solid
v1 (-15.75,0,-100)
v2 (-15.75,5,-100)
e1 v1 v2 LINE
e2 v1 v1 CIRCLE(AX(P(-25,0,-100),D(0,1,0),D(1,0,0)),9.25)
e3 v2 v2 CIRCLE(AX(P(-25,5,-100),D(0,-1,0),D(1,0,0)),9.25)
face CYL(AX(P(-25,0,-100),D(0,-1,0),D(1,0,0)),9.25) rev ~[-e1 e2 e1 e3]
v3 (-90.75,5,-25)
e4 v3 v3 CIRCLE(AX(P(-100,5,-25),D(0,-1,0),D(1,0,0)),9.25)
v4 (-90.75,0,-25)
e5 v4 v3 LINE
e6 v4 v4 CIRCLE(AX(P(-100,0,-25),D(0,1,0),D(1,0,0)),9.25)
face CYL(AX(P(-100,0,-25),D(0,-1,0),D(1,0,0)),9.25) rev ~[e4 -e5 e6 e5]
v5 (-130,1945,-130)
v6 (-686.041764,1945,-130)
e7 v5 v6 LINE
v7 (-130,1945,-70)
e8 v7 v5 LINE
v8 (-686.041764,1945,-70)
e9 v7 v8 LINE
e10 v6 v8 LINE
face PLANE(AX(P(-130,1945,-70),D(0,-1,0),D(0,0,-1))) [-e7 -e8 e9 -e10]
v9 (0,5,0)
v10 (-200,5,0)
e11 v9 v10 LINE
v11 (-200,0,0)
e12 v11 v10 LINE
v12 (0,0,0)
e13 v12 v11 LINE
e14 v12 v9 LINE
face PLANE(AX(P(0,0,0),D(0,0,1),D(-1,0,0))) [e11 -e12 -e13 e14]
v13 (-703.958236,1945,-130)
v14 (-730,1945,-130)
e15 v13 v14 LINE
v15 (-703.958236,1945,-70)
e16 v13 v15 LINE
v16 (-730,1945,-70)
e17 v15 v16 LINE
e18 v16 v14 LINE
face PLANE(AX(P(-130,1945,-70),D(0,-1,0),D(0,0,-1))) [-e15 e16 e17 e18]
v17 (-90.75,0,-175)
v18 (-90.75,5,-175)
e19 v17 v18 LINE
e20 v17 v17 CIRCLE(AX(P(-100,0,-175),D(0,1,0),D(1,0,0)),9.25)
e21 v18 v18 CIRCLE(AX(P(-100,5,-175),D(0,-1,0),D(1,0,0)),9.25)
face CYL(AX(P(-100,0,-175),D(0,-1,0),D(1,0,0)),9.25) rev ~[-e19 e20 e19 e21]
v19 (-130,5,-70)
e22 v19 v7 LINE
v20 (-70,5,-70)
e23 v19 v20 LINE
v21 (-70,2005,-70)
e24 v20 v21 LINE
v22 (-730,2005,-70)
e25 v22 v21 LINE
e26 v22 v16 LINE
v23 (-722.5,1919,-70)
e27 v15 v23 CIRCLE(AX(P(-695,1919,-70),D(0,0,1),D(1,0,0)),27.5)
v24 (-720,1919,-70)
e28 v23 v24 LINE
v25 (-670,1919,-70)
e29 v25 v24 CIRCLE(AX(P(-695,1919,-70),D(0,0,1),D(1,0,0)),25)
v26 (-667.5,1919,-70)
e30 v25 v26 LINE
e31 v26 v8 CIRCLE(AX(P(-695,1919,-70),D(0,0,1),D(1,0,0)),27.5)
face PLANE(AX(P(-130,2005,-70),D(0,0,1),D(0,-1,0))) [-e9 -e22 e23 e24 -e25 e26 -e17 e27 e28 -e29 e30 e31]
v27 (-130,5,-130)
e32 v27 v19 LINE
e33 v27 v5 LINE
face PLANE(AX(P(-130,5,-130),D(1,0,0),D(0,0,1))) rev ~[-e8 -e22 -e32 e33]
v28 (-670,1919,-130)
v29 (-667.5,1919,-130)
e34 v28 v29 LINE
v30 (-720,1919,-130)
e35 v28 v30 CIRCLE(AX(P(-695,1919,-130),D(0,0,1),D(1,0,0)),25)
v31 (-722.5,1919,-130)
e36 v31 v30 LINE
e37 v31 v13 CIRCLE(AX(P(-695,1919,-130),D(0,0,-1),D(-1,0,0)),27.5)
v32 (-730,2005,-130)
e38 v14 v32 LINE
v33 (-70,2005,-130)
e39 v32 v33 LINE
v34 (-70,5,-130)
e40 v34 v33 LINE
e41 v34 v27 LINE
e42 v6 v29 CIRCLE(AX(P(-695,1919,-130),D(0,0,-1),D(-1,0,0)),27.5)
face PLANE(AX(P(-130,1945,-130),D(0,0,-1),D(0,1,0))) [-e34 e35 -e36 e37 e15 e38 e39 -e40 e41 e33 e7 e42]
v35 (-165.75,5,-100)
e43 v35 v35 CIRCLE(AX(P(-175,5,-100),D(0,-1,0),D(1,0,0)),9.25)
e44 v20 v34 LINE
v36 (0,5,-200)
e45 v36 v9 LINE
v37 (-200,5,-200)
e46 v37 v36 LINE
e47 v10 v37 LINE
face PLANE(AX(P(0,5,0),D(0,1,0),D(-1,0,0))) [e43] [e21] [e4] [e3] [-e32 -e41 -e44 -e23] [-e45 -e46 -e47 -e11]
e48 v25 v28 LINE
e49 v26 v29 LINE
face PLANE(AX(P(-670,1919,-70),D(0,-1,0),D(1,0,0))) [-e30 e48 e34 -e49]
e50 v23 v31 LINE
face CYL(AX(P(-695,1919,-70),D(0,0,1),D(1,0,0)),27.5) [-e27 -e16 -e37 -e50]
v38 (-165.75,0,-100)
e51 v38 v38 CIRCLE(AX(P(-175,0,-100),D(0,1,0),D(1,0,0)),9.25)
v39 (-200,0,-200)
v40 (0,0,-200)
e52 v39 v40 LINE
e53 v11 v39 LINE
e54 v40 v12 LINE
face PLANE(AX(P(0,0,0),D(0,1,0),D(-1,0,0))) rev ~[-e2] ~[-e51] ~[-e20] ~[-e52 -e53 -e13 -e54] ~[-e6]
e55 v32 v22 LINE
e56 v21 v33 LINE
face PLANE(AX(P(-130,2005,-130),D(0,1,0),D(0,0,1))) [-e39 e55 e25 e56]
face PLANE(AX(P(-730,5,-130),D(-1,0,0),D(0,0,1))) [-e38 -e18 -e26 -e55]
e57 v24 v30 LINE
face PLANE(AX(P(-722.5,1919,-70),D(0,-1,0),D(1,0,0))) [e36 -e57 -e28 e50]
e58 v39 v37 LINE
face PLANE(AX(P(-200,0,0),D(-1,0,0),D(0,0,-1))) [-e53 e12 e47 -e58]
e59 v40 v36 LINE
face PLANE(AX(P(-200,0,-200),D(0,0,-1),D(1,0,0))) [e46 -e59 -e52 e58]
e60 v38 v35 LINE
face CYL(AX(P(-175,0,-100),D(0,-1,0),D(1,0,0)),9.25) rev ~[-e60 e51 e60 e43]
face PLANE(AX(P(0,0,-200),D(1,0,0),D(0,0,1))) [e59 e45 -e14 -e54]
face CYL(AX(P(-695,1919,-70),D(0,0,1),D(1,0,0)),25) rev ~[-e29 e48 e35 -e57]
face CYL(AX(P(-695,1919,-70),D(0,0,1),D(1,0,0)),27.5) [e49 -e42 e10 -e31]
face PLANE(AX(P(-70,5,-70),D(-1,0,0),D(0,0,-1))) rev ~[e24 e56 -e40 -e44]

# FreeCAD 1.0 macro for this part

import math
import FreeCAD as App
import Part
import Sketcher
from FreeCAD import Vector

doc = App.newDocument("Part")
params = doc.addObject("Spreadsheet::Sheet", "Params")
for row, (alias, value) in enumerate([
    ("sketch1_width", "200 mm"),
    ("pad1_length", "5 mm"),
    ("sketch2_width", "60 mm"),
    ("pad2_length", "2000 mm"),
    ("sketch3_width", "60 mm"),
    ("pad3_length", "600 mm"),
    ("sketch4_radius", "25 mm"),
    ("sketch4_radius2", "27.5 mm"),
    ("pad4_length", "60 mm"),
    ("sketch5_diameter", "18.5 mm"),
    ("pocket1_length", "10 mm"),
], start=1):
    params.set(f"A{row}", alias)
    params.set(f"B{row}", "=" + value)
    params.setAlias(f"B{row}", alias)

body = doc.addObject("PartDesign::Body", "Body")

# Sketch on XZ plane
sketch1 = doc.addObject("Sketcher::SketchObject", "Sketch")
body.addObject(sketch1)
sketch1.AttachmentSupport = (doc.XZ_Plane, [""])
sketch1.MapMode = "FlatFace"
sketch1.addGeometry([
    Part.LineSegment(Vector(-200, 0, 0), Vector(0, 0, 0)),
    Part.LineSegment(Vector(0, 0, 0), Vector(0, -200, 0)),
    Part.LineSegment(Vector(0, -200, 0), Vector(-200, -200, 0)),
    Part.LineSegment(Vector(-200, -200, 0), Vector(-200, 0, 0)),
], False)
sketch1.addConstraint([
    Sketcher.Constraint("Coincident", 0, 2, 1, 1),
    Sketcher.Constraint("Coincident", 1, 2, 2, 1),
    Sketcher.Constraint("Coincident", 2, 2, 3, 1),
    Sketcher.Constraint("Coincident", 3, 2, 0, 1),
    Sketcher.Constraint("Horizontal", 0),
    Sketcher.Constraint("Vertical", 1),
    Sketcher.Constraint("Horizontal", 2),
    Sketcher.Constraint("Vertical", 3),
    Sketcher.Constraint("Coincident", 0, 2, -1, 1),
    Sketcher.Constraint("Equal", 2, 1),
    Sketcher.Constraint("DistanceX", 0, 1, 0, 2, 200.0),
])
sketch1.setExpression("Constraints[10]", "Params.sketch1_width")
pad1 = doc.addObject("PartDesign::Pad", "Pad")
body.addObject(pad1)
pad1.Profile = sketch1
pad1.setExpression("Length", "Params.pad1_length")
pad1.Reversed = True

# Sketch on XZ plane
sketch2 = doc.addObject("Sketcher::SketchObject", "Sketch001")
body.addObject(sketch2)
sketch2.AttachmentSupport = (doc.XZ_Plane, [""])
sketch2.MapMode = "FlatFace"
sketch2.AttachmentOffset = App.Placement(Vector(0, 0, -5), App.Rotation())
sketch2.addGeometry([
    Part.LineSegment(Vector(-130, -130, 0), Vector(-130, -70, 0)),
    Part.LineSegment(Vector(-130, -70, 0), Vector(-70, -70, 0)),
    Part.LineSegment(Vector(-70, -70, 0), Vector(-70, -130, 0)),
    Part.LineSegment(Vector(-70, -130, 0), Vector(-130, -130, 0)),
], False)
sketch2.addConstraint([
    Sketcher.Constraint("Coincident", 0, 2, 1, 1),
    Sketcher.Constraint("Coincident", 1, 2, 2, 1),
    Sketcher.Constraint("Coincident", 2, 2, 3, 1),
    Sketcher.Constraint("Coincident", 3, 2, 0, 1),
    Sketcher.Constraint("Vertical", 0),
    Sketcher.Constraint("Horizontal", 1),
    Sketcher.Constraint("Vertical", 2),
    Sketcher.Constraint("Horizontal", 3),
    Sketcher.Constraint("Equal", 3, 0),
    Sketcher.Constraint("DistanceX", 1, 1, 1, 2, 60.0),
    Sketcher.Constraint("DistanceY", 0, 2, -1, 1, 70.0),
    Sketcher.Constraint("DistanceX", 1, 2, -1, 1, 70.0),
])
sketch2.setExpression("Constraints[9]", "Params.sketch2_width")
pad2 = doc.addObject("PartDesign::Pad", "Pad001")
body.addObject(pad2)
pad2.Profile = sketch2
pad2.setExpression("Length", "Params.pad2_length")
pad2.Reversed = True

# Sketch on YZ plane
sketch3 = doc.addObject("Sketcher::SketchObject", "Sketch002")
body.addObject(sketch3)
sketch3.AttachmentSupport = (doc.YZ_Plane, [""])
sketch3.MapMode = "FlatFace"
sketch3.AttachmentOffset = App.Placement(Vector(0, 0, -130), App.Rotation())
sketch3.addGeometry([
    Part.LineSegment(Vector(2005, -130, 0), Vector(1945, -130, 0)),
    Part.LineSegment(Vector(1945, -130, 0), Vector(1945, -70, 0)),
    Part.LineSegment(Vector(1945, -70, 0), Vector(2005, -70, 0)),
    Part.LineSegment(Vector(2005, -70, 0), Vector(2005, -130, 0)),
], False)
sketch3.addConstraint([
    Sketcher.Constraint("Coincident", 0, 2, 1, 1),
    Sketcher.Constraint("Coincident", 1, 2, 2, 1),
    Sketcher.Constraint("Coincident", 2, 2, 3, 1),
    Sketcher.Constraint("Coincident", 3, 2, 0, 1),
    Sketcher.Constraint("Horizontal", 0),
    Sketcher.Constraint("Vertical", 1),
    Sketcher.Constraint("Horizontal", 2),
    Sketcher.Constraint("Vertical", 3),
    Sketcher.Constraint("Equal", 2, 1),
    Sketcher.Constraint("DistanceX", 0, 2, 0, 1, 60.0),
    Sketcher.Constraint("DistanceX", -1, 1, 0, 2, 1945.0),
    Sketcher.Constraint("DistanceY", 0, 2, -1, 1, 130.0),
])
sketch3.setExpression("Constraints[9]", "Params.sketch3_width")
pad3 = doc.addObject("PartDesign::Pad", "Pad002")
body.addObject(pad3)
pad3.Profile = sketch3
pad3.setExpression("Length", "Params.pad3_length")
pad3.Reversed = True

# Sketch on XY plane
sketch4 = doc.addObject("Sketcher::SketchObject", "Sketch003")
body.addObject(sketch4)
sketch4.AttachmentSupport = (doc.XY_Plane, [""])
sketch4.MapMode = "FlatFace"
sketch4.AttachmentOffset = App.Placement(Vector(0, 0, -70), App.Rotation())
sketch4.addGeometry([
    Part.ArcOfCircle(Part.Circle(Vector(-695, 1919, 0), Vector(0, 0, 1), 25), math.radians(0), math.radians(180)),
    Part.LineSegment(Vector(-670, 1919, 0), Vector(-667.5, 1919, 0)),
    Part.ArcOfCircle(Part.Circle(Vector(-695, 1919, 0), Vector(0, 0, 1), 27.5), math.radians(0), math.radians(180)),
    Part.LineSegment(Vector(-722.5, 1919, 0), Vector(-720, 1919, 0)),
], False)
sketch4.addConstraint([
    Sketcher.Constraint("Coincident", 0, 1, 1, 1),
    Sketcher.Constraint("Coincident", 1, 2, 2, 1),
    Sketcher.Constraint("Coincident", 2, 2, 3, 1),
    Sketcher.Constraint("Coincident", 3, 2, 0, 2),
    Sketcher.Constraint("Horizontal", 1),
    Sketcher.Constraint("Horizontal", 3),
    Sketcher.Constraint("Coincident", 2, 3, 0, 3),
    Sketcher.Constraint("Horizontal", 2, 3, 0, 1),
    Sketcher.Constraint("Horizontal", 1, 2, 2, 2),
    Sketcher.Constraint("Radius", 0, 25.0),
    Sketcher.Constraint("Radius", 2, 27.5),
    Sketcher.Constraint("DistanceX", 0, 3, -1, 1, 695.0),
    Sketcher.Constraint("DistanceY", -1, 1, 0, 3, 1919.0),
])
sketch4.setExpression("Constraints[9]", "Params.sketch4_radius")
sketch4.setExpression("Constraints[10]", "Params.sketch4_radius2")
pad4 = doc.addObject("PartDesign::Pad", "Pad003")
body.addObject(pad4)
pad4.Profile = sketch4
pad4.setExpression("Length", "Params.pad4_length")
pad4.Reversed = True

# Sketch on XZ plane
sketch5 = doc.addObject("Sketcher::SketchObject", "Sketch004")
body.addObject(sketch5)
sketch5.AttachmentSupport = (doc.XZ_Plane, [""])
sketch5.MapMode = "FlatFace"
sketch5.addGeometry([
    Part.Circle(Vector(-25, -100, 0), Vector(0, 0, 1), 9),
    Part.Circle(Vector(-100, -25, 0), Vector(0, 0, 1), 9),
    Part.Circle(Vector(-100, -175, 0), Vector(0, 0, 1), 9),
    Part.Circle(Vector(-175, -100, 0), Vector(0, 0, 1), 9),
], False)
sketch5.addConstraint([
    Sketcher.Constraint("Equal", 0, 1),
    Sketcher.Constraint("Equal", 1, 2),
    Sketcher.Constraint("Equal", 2, 3),
    Sketcher.Constraint("Horizontal", 0, 3, 3, 3),
    Sketcher.Constraint("Vertical", 1, 3, 2, 3),
    Sketcher.Constraint("Diameter", 0, 18.5),
    Sketcher.Constraint("DistanceX", 1, 3, 0, 3, 75.0),
    Sketcher.Constraint("DistanceY", 0, 3, 1, 3, 75.0),
    Sketcher.Constraint("DistanceY", 2, 3, 0, 3, 75.0),
    Sketcher.Constraint("DistanceX", 3, 3, 1, 3, 75.0),
    Sketcher.Constraint("DistanceX", 0, 3, -1, 1, 25.0),
    Sketcher.Constraint("DistanceY", 0, 3, -1, 1, 100.0),
])
sketch5.setExpression("Constraints[5]", "Params.sketch5_diameter")
pocket1 = doc.addObject("PartDesign::Pocket", "Pocket")
body.addObject(pocket1)
pocket1.Profile = sketch5
pocket1.setExpression("Length", "Params.pocket1_length")

doc.recompute()
